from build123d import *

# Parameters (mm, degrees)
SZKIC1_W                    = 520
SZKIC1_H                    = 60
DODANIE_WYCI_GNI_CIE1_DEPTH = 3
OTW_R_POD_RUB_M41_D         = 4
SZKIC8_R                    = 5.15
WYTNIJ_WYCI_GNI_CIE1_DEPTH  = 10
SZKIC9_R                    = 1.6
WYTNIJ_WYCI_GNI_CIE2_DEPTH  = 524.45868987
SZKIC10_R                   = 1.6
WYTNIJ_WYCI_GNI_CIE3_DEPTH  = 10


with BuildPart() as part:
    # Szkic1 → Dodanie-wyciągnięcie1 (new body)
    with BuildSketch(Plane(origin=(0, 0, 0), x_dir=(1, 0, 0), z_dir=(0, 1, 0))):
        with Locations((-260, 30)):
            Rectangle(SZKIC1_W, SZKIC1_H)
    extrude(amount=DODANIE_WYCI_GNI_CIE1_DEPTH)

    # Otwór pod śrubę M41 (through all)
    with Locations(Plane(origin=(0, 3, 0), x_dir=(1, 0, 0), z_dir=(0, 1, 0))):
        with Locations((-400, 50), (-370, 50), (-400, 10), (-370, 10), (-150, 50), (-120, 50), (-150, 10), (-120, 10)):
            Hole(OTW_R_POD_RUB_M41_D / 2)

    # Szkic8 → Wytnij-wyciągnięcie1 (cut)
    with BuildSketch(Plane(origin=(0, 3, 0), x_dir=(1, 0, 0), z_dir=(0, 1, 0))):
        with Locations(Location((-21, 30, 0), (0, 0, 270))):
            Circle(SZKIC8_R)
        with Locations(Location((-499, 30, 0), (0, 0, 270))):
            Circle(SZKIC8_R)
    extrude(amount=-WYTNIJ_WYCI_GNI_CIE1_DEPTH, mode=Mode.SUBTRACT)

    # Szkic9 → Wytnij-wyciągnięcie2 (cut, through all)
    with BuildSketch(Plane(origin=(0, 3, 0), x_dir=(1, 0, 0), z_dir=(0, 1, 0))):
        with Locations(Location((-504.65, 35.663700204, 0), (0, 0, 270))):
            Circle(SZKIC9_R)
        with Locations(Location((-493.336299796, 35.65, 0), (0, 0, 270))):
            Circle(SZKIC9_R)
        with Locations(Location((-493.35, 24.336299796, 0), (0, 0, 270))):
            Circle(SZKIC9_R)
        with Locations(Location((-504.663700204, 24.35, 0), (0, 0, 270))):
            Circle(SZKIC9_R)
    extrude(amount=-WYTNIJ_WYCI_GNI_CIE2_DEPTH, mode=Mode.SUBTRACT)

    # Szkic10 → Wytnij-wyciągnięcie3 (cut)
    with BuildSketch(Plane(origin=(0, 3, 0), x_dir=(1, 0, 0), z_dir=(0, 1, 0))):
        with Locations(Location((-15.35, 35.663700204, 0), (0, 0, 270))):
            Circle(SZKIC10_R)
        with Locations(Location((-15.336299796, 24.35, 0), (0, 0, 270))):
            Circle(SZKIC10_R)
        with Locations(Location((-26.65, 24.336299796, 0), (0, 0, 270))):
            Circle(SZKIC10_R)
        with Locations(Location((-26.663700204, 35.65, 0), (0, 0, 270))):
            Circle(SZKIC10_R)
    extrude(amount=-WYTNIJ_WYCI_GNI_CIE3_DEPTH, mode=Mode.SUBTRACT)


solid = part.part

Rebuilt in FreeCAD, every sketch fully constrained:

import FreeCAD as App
import Part
import Sketcher
from FreeCAD import Vector


def add_polygon(sketch, points):
    """Adds a closed chain of lines whose ends are joined by coincident constraints."""
    first, n = sketch.GeometryCount, len(points)
    for a, b in zip(points, points[1:] + points[:1]):
        sketch.addGeometry(Part.LineSegment(App.Vector(*a, 0), App.Vector(*b, 0)), False)
    for i in range(n):
        sketch.addConstraint(Sketcher.Constraint("Coincident", first + i, 2, first + (i + 1) % n, 1))

doc = App.newDocument("Part")
body = doc.addObject("PartDesign::Body", "Body")

# Sketch on XZ plane
sketch1 = body.newObject("Sketcher::SketchObject", "Sketch")
sketch1.AttachmentSupport = (doc.getObject("XZ_Plane"), [""])
sketch1.MapMode = "FlatFace"
add_polygon(sketch1, [(-520, -60), (-520, 0), (0, 0), (0, -60)])  # lines 0-3
sketch1.addConstraint(Sketcher.Constraint("Vertical", 0))
sketch1.addConstraint(Sketcher.Constraint("Horizontal", 1))
sketch1.addConstraint(Sketcher.Constraint("Vertical", 2))
sketch1.addConstraint(Sketcher.Constraint("Horizontal", 3))
sketch1.addConstraint(Sketcher.Constraint("Coincident", 1, 2, -1, 1))
sketch1.addConstraint(Sketcher.Constraint("DistanceX", 1, 1, 1, 2, 520.0))
sketch1.addConstraint(Sketcher.Constraint("DistanceY", 0, 1, 0, 2, 60.0))
pad1 = body.newObject("PartDesign::Pad", "Pad")
pad1.Profile = sketch1
pad1.Length = 3
pad1.Reversed = True

# Sketch on XZ plane
sketch2 = body.newObject("Sketcher::SketchObject", "Sketch001")
sketch2.AttachmentSupport = (doc.getObject("XZ_Plane"), [""])
sketch2.MapMode = "FlatFace"
sketch2.AttachmentOffset = App.Placement(Vector(0, 0, -3), App.Rotation())
sketch2.addGeometry(Part.Circle(Vector(-400, -50, 0), Vector(0, 0, 1), 2), False)
sketch2.addGeometry(Part.Circle(Vector(-370, -50, 0), Vector(0, 0, 1), 2), False)
sketch2.addGeometry(Part.Circle(Vector(-400, -10, 0), Vector(0, 0, 1), 2), False)
sketch2.addGeometry(Part.Circle(Vector(-370, -10, 0), Vector(0, 0, 1), 2), False)
sketch2.addGeometry(Part.Circle(Vector(-150, -50, 0), Vector(0, 0, 1), 2), False)
sketch2.addGeometry(Part.Circle(Vector(-120, -50, 0), Vector(0, 0, 1), 2), False)
sketch2.addGeometry(Part.Circle(Vector(-150, -10, 0), Vector(0, 0, 1), 2), False)
sketch2.addGeometry(Part.Circle(Vector(-120, -10, 0), Vector(0, 0, 1), 2), False)
sketch2.addConstraint(Sketcher.Constraint("Equal", 0, 1))
sketch2.addConstraint(Sketcher.Constraint("Equal", 1, 2))
sketch2.addConstraint(Sketcher.Constraint("Equal", 2, 3))
sketch2.addConstraint(Sketcher.Constraint("Equal", 3, 4))
sketch2.addConstraint(Sketcher.Constraint("Equal", 4, 5))
sketch2.addConstraint(Sketcher.Constraint("Equal", 5, 6))
sketch2.addConstraint(Sketcher.Constraint("Equal", 6, 7))
sketch2.addConstraint(Sketcher.Constraint("Horizontal", 0, 3, 1, 3))
sketch2.addConstraint(Sketcher.Constraint("Horizontal", 2, 3, 3, 3))
sketch2.addConstraint(Sketcher.Constraint("Horizontal", 1, 3, 4, 3))
sketch2.addConstraint(Sketcher.Constraint("Horizontal", 4, 3, 5, 3))
sketch2.addConstraint(Sketcher.Constraint("Horizontal", 3, 3, 6, 3))
sketch2.addConstraint(Sketcher.Constraint("Horizontal", 6, 3, 7, 3))
sketch2.addConstraint(Sketcher.Constraint("Vertical", 0, 3, 2, 3))
sketch2.addConstraint(Sketcher.Constraint("Vertical", 1, 3, 3, 3))
sketch2.addConstraint(Sketcher.Constraint("Vertical", 4, 3, 6, 3))
sketch2.addConstraint(Sketcher.Constraint("Vertical", 5, 3, 7, 3))
sketch2.addConstraint(Sketcher.Constraint("Diameter", 0, 4.0))
sketch2.addConstraint(Sketcher.Constraint("DistanceX", 0, 3, -1, 1, 400.0))
sketch2.addConstraint(Sketcher.Constraint("DistanceY", 0, 3, -1, 1, 50.0))
sketch2.addConstraint(Sketcher.Constraint("DistanceX", 1, 3, -1, 1, 370.0))
sketch2.addConstraint(Sketcher.Constraint("DistanceY", 2, 3, -1, 1, 10.0))
sketch2.addConstraint(Sketcher.Constraint("DistanceX", 4, 3, -1, 1, 150.0))
sketch2.addConstraint(Sketcher.Constraint("DistanceX", 5, 3, -1, 1, 120.0))
doc.recompute()
hole = body.newObject("PartDesign::Hole", "Hole")
hole.Profile = sketch2
hole.ThreadType = "None"
hole.Diameter = 4
hole.DepthType = "ThroughAll"
hole.Reversed = True

# Sketch on XZ plane
sketch3 = body.newObject("Sketcher::SketchObject", "Sketch002")
sketch3.AttachmentSupport = (doc.getObject("XZ_Plane"), [""])
sketch3.MapMode = "FlatFace"
sketch3.AttachmentOffset = App.Placement(Vector(0, 0, -3), App.Rotation())
sketch3.addGeometry(Part.Circle(Vector(-21, -30, 0), Vector(0, 0, 1), 5), False)
sketch3.addGeometry(Part.Circle(Vector(-499, -30, 0), Vector(0, 0, 1), 5), False)
sketch3.addConstraint(Sketcher.Constraint("Equal", 0, 1))
sketch3.addConstraint(Sketcher.Constraint("Horizontal", 0, 3, 1, 3))
sketch3.addConstraint(Sketcher.Constraint("Diameter", 0, 10.3))
sketch3.addConstraint(Sketcher.Constraint("DistanceX", 0, 3, -1, 1, 21.0))
sketch3.addConstraint(Sketcher.Constraint("DistanceY", 0, 3, -1, 1, 30.0))
sketch3.addConstraint(Sketcher.Constraint("DistanceX", 1, 3, -1, 1, 499.0))
pocket1 = body.newObject("PartDesign::Pocket", "Pocket")
pocket1.Profile = sketch3
pocket1.Length = 10
pocket1.Reversed = True

# Sketch on XZ plane
sketch4 = body.newObject("Sketcher::SketchObject", "Sketch003")
sketch4.AttachmentSupport = (doc.getObject("XZ_Plane"), [""])
sketch4.MapMode = "FlatFace"
sketch4.AttachmentOffset = App.Placement(Vector(0, 0, -3), App.Rotation())
sketch4.addGeometry(Part.Circle(Vector(-504.6, -35.7, 0), Vector(0, 0, 1), 1.6), False)
sketch4.addGeometry(Part.Circle(Vector(-493.3, -35.6, 0), Vector(0, 0, 1), 1.6), False)
sketch4.addGeometry(Part.Circle(Vector(-493.4, -24.3, 0), Vector(0, 0, 1), 1.6), False)
sketch4.addGeometry(Part.Circle(Vector(-504.7, -24.4, 0), Vector(0, 0, 1), 1.6), False)
sketch4.addConstraint(Sketcher.Constraint("Equal", 0, 1))
sketch4.addConstraint(Sketcher.Constraint("Equal", 1, 2))
sketch4.addConstraint(Sketcher.Constraint("Equal", 2, 3))
sketch4.addConstraint(Sketcher.Constraint("Diameter", 0, 3.2))
sketch4.addConstraint(Sketcher.Constraint("DistanceX", 0, 3, 2, 3, 11.3))
sketch4.addConstraint(Sketcher.Constraint("DistanceY", 1, 3, 3, 3, 11.3))
sketch4.addConstraint(Sketcher.Constraint("DistanceX", 0, 3, -1, 1, 504.65))
sketch4.addConstraint(Sketcher.Constraint("DistanceY", 1, 3, -1, 1, 35.65))
sketch4.addConstraint(Sketcher.Constraint("DistanceY", 0, 3, -1, 1, 35.6637))
sketch4.addConstraint(Sketcher.Constraint("DistanceX", 1, 3, -1, 1, 493.3363))
sketch4.addConstraint(Sketcher.Constraint("DistanceY", 2, 3, -1, 1, 24.3363))
sketch4.addConstraint(Sketcher.Constraint("DistanceX", 3, 3, -1, 1, 504.6637))
pocket2 = body.newObject("PartDesign::Pocket", "Pocket001")
pocket2.Profile = sketch4
pocket2.Type = "ThroughAll"
pocket2.Reversed = True

# Sketch on XZ plane
sketch5 = body.newObject("Sketcher::SketchObject", "Sketch004")
sketch5.AttachmentSupport = (doc.getObject("XZ_Plane"), [""])
sketch5.MapMode = "FlatFace"
sketch5.AttachmentOffset = App.Placement(Vector(0, 0, -3), App.Rotation())
sketch5.addGeometry(Part.Circle(Vector(-15.3, -35.7, 0), Vector(0, 0, 1), 1.6), False)
sketch5.addGeometry(Part.Circle(Vector(-15.3, -24.4, 0), Vector(0, 0, 1), 1.6), False)
sketch5.addGeometry(Part.Circle(Vector(-26.6, -24.3, 0), Vector(0, 0, 1), 1.6), False)
sketch5.addGeometry(Part.Circle(Vector(-26.7, -35.6, 0), Vector(0, 0, 1), 1.6), False)
sketch5.addConstraint(Sketcher.Constraint("Equal", 0, 1))
sketch5.addConstraint(Sketcher.Constraint("Equal", 1, 2))
sketch5.addConstraint(Sketcher.Constraint("Equal", 2, 3))
sketch5.addConstraint(Sketcher.Constraint("Diameter", 0, 3.2))
sketch5.addConstraint(Sketcher.Constraint("DistanceX", 2, 3, 0, 3, 11.3))
sketch5.addConstraint(Sketcher.Constraint("DistanceY", 3, 3, 1, 3, 11.3))
sketch5.addConstraint(Sketcher.Constraint("DistanceX", 0, 3, -1, 1, 15.35))
sketch5.addConstraint(Sketcher.Constraint("DistanceY", 1, 3, -1, 1, 24.35))
sketch5.addConstraint(Sketcher.Constraint("DistanceY", 0, 3, -1, 1, 35.6637))
sketch5.addConstraint(Sketcher.Constraint("DistanceX", 1, 3, -1, 1, 15.3363))
sketch5.addConstraint(Sketcher.Constraint("DistanceY", 2, 3, -1, 1, 24.3363))
sketch5.addConstraint(Sketcher.Constraint("DistanceX", 3, 3, -1, 1, 26.6637))
pocket3 = body.newObject("PartDesign::Pocket", "Pocket002")
pocket3.Profile = sketch5
pocket3.Length = 10
pocket3.Reversed = True

doc.recompute()
